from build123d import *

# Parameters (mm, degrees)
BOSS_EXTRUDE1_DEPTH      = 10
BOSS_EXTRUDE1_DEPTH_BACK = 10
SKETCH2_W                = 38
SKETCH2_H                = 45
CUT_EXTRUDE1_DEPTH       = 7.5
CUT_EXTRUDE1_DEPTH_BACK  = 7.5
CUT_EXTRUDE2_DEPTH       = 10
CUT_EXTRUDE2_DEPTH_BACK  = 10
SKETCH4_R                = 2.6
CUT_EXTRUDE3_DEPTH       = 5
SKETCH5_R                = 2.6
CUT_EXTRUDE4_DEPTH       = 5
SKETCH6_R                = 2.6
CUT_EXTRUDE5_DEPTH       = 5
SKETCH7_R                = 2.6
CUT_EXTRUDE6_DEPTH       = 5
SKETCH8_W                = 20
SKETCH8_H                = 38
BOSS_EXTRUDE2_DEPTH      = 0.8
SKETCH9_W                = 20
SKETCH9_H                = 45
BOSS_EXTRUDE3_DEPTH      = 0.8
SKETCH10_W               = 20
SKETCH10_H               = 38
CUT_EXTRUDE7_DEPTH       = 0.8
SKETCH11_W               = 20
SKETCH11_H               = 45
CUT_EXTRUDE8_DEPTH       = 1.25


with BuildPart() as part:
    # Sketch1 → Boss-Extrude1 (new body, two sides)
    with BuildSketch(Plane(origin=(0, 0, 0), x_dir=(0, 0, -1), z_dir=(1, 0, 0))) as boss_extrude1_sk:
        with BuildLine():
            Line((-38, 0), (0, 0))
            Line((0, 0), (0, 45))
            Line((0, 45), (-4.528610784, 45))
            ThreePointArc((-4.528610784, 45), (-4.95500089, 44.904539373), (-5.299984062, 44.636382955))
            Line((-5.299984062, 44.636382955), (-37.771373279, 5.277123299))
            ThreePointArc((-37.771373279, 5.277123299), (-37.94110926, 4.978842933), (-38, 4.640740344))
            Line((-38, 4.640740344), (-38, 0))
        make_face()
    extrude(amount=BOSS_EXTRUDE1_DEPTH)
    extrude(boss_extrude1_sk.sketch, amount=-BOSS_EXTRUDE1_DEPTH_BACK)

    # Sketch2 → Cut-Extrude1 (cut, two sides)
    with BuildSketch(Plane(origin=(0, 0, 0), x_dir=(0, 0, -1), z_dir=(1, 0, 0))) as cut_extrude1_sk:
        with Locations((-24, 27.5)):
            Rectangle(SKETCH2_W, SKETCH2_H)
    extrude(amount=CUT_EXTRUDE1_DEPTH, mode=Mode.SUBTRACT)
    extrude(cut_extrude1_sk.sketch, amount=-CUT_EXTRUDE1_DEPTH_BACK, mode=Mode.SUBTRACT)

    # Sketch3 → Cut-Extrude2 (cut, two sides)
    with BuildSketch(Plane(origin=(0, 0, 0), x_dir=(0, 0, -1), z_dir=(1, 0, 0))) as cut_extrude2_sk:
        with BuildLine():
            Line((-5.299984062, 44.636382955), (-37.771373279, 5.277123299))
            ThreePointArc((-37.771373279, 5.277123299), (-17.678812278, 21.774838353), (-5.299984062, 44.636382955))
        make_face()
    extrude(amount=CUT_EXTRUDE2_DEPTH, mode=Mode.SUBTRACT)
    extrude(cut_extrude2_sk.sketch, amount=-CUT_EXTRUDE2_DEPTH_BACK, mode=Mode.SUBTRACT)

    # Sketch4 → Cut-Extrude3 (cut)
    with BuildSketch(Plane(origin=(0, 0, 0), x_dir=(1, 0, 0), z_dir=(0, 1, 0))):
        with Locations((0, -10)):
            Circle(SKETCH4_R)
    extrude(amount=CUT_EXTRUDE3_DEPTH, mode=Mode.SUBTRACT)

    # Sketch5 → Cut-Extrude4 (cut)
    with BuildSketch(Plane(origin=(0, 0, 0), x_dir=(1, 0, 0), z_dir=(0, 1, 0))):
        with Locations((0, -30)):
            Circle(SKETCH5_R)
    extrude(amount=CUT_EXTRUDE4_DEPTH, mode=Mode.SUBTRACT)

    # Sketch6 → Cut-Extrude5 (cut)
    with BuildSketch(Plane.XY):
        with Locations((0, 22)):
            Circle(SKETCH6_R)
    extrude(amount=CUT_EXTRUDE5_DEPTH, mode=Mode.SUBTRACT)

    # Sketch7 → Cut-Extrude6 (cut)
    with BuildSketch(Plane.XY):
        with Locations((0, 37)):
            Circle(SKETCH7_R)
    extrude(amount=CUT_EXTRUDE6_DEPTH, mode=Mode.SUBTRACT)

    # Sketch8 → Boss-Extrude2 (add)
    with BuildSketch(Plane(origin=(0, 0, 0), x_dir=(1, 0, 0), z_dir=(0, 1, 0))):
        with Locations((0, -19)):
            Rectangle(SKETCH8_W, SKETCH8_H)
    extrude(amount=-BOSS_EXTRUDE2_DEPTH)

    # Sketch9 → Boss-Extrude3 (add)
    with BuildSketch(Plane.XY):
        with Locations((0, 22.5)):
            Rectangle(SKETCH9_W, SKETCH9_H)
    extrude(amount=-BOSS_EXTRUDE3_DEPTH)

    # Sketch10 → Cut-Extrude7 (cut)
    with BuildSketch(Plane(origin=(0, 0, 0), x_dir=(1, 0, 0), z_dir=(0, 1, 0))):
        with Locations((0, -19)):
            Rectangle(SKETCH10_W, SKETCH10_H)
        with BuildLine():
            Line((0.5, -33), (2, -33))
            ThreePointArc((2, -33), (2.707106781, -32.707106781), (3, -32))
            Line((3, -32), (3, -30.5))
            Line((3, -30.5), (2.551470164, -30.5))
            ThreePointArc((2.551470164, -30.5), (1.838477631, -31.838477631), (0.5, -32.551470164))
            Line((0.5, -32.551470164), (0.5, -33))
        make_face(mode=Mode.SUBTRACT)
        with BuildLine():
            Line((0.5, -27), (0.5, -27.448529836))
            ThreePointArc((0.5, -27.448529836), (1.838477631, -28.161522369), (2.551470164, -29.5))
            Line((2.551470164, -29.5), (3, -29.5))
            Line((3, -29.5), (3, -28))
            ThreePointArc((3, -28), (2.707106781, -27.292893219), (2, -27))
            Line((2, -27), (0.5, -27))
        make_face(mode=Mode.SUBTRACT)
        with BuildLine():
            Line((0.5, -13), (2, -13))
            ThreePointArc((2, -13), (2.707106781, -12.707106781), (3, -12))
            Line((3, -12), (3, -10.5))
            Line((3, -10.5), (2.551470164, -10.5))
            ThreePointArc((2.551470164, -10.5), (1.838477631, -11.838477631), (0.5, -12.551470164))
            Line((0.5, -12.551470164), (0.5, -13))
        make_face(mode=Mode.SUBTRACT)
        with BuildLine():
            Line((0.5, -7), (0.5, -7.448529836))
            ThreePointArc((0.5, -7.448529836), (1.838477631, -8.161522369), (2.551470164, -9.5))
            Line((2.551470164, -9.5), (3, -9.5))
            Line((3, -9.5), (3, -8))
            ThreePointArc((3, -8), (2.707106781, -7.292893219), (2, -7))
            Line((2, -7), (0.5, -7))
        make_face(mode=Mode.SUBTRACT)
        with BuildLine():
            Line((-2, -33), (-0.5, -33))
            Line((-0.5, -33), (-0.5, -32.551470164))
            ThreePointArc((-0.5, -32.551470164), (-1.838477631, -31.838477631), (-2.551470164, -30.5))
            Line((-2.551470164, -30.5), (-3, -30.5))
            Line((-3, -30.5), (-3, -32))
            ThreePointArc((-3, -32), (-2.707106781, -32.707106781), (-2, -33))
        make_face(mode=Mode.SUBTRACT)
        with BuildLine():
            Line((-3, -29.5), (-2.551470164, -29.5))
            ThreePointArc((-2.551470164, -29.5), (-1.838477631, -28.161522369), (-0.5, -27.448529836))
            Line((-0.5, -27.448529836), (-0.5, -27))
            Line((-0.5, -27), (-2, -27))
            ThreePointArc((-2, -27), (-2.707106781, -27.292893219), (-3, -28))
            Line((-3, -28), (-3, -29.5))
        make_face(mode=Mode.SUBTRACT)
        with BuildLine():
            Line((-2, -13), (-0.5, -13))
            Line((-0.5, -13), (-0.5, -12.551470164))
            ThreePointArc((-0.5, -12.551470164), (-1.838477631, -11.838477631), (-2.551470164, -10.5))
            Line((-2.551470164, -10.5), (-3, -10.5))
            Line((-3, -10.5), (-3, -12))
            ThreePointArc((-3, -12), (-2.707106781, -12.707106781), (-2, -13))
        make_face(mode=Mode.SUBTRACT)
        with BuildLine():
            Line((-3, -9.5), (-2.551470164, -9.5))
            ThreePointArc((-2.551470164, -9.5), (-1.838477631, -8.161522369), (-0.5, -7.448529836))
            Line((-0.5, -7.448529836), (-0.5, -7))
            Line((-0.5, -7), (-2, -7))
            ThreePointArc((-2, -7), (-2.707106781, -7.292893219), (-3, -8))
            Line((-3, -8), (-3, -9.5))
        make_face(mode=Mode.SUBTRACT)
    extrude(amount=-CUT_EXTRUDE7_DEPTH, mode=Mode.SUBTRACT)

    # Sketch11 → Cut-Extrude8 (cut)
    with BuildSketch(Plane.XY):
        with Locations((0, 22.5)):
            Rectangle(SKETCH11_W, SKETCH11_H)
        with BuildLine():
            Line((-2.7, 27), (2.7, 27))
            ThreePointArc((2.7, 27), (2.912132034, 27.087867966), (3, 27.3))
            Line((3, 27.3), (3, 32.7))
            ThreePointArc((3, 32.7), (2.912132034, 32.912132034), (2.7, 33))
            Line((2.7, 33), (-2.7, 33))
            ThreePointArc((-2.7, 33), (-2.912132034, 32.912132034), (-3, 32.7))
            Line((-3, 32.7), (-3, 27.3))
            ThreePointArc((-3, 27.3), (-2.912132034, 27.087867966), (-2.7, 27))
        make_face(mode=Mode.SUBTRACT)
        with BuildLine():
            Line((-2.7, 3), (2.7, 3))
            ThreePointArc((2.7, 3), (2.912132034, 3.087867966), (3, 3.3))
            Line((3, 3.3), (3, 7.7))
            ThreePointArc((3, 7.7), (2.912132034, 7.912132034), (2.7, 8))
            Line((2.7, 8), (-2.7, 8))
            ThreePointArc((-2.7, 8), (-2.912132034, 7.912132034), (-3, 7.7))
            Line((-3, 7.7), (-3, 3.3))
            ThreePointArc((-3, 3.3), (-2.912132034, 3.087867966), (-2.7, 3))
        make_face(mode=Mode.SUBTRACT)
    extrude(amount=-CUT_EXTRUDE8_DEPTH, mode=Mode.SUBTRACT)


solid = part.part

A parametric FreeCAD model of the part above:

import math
import FreeCAD as App
import Part
import Sketcher

doc = App.newDocument("Part")
body = doc.addObject("PartDesign::Body", "Body")

sketch1 = body.newObject("Sketcher::SketchObject", "Sketch")
sketch1.AttachmentSupport = (doc.getObject("YZ_Plane"), [""])
sketch1.MapMode = "FlatFace"
sketch1.addGeometry([
    Part.LineSegment(App.Vector(0, 38, 0), App.Vector(0, 0, 0)),
    Part.LineSegment(App.Vector(0, 0, 0), App.Vector(45, 0, 0)),
    Part.LineSegment(App.Vector(45, 0, 0), App.Vector(45, 4.5, 0)),
    Part.ArcOfCircle(Part.Circle(App.Vector(44, 4.5, 0), App.Vector(0, 0, 1), 1), math.radians(0), math.radians(50)),
    Part.LineSegment(App.Vector(44.6, 5.3, 0), App.Vector(5.3, 37.8, 0)),
    Part.ArcOfCircle(Part.Circle(App.Vector(4.6, 37, 0), App.Vector(0, 0, 1), 1), math.radians(50), math.radians(90)),
    Part.LineSegment(App.Vector(4.6, 38, 0), App.Vector(0, 38, 0)),
], False)
sketch1.addConstraint([
    Sketcher.Constraint("Coincident", 0, 2, 1, 1),
    Sketcher.Constraint("Coincident", 1, 2, 2, 1),
    Sketcher.Constraint("Tangent", 2, 2, 3, 1),
    Sketcher.Constraint("Tangent", 3, 2, 4, 1),
    Sketcher.Constraint("Tangent", 4, 2, 5, 1),
    Sketcher.Constraint("Tangent", 5, 2, 6, 1),
    Sketcher.Constraint("Coincident", 6, 2, 0, 1),
    Sketcher.Constraint("Vertical", 0),
    Sketcher.Constraint("Horizontal", 1),
    Sketcher.Constraint("Vertical", 2),
    Sketcher.Constraint("Horizontal", 6),
    Sketcher.Constraint("Coincident", 0, 2, -1, 1),
    Sketcher.Constraint("Equal", 3, 5),
    Sketcher.Constraint("Radius", 3, 1.0),
    Sketcher.Constraint("DistanceX", 1, 1, 1, 2, 45.0),
    Sketcher.Constraint("DistanceY", 0, 2, 0, 1, 38.0),
    Sketcher.Constraint("DistanceX", 6, 2, 6, 1, 4.64074),
    Sketcher.Constraint("DistanceY", 2, 1, 2, 2, 4.528611),
])
pad1 = body.newObject("PartDesign::Pad", "Pad")
pad1.Profile = sketch1
pad1.Type = "TwoLengths"
pad1.Length = 10
pad1.Length2 = 10

sketch2 = body.newObject("Sketcher::SketchObject", "Sketch001")
sketch2.AttachmentSupport = (doc.getObject("YZ_Plane"), [""])
sketch2.MapMode = "FlatFace"
sketch2.addGeometry([
    Part.LineSegment(App.Vector(50, 43, 0), App.Vector(5, 43, 0)),
    Part.LineSegment(App.Vector(5, 43, 0), App.Vector(5, 5, 0)),
    Part.LineSegment(App.Vector(5, 5, 0), App.Vector(50, 5, 0)),
    Part.LineSegment(App.Vector(50, 5, 0), App.Vector(50, 43, 0)),
], False)
sketch2.addConstraint([
    Sketcher.Constraint("Coincident", 0, 2, 1, 1),
    Sketcher.Constraint("Coincident", 1, 2, 2, 1),
    Sketcher.Constraint("Coincident", 2, 2, 3, 1),
    Sketcher.Constraint("Coincident", 3, 2, 0, 1),
    Sketcher.Constraint("Horizontal", 0),
    Sketcher.Constraint("Vertical", 1),
    Sketcher.Constraint("Horizontal", 2),
    Sketcher.Constraint("Vertical", 3),
    Sketcher.Constraint("DistanceX", 0, 2, 0, 1, 45.0),
    Sketcher.Constraint("DistanceY", 1, 2, 1, 1, 38.0),
    Sketcher.Constraint("DistanceX", -1, 1, 0, 2, 5.0),
    Sketcher.Constraint("DistanceY", -1, 1, 0, 2, 43.0),
])
pocket1 = body.newObject("PartDesign::Pocket", "Pocket")
pocket1.Profile = sketch2
pocket1.Type = "TwoLengths"
pocket1.Length = 7.5
pocket1.Length2 = 7.5
pocket1.Reversed = True

sketch3 = body.newObject("Sketcher::SketchObject", "Sketch002")
sketch3.AttachmentSupport = (doc.getObject("YZ_Plane"), [""])
sketch3.MapMode = "FlatFace"
sketch3.addGeometry([
    Part.LineSegment(App.Vector(45, 5, 0), App.Vector(5, 38, 0)),
    Part.ArcOfCircle(Part.Circle(App.Vector(65, 70, 0), App.Vector(0, 0, 1), 68), math.radians(-152), math.radians(-107)),
], False)
sketch3.addConstraint([
    Sketcher.Constraint("Coincident", 0, 1, 1, 2),
    Sketcher.Constraint("Coincident", 1, 1, 0, 2),
    Sketcher.Constraint("Radius", 1, 67.588561),
    Sketcher.Constraint("Distance", 0, 51.02492),
    Sketcher.Constraint("DistanceY", 0, 1, 1, 3, 64.514838),
    Sketcher.Constraint("DistanceX", -1, 1, 1, 3, 64.787046),
    Sketcher.Constraint("DistanceY", -1, 1, 1, 3, 69.814822),
])
pocket2 = body.newObject("PartDesign::Pocket", "Pocket001")
pocket2.Profile = sketch3
pocket2.Type = "ThroughAll"
pocket2.Midplane = True

sketch4 = body.newObject("Sketcher::SketchObject", "Sketch003")
sketch4.AttachmentSupport = (doc.getObject("XZ_Plane"), [""])
sketch4.MapMode = "FlatFace"
sketch4.addGeometry(Part.Circle(App.Vector(0, 10, 0), App.Vector(0, 0, 1), 2.6), False)
sketch4.addConstraint([
    Sketcher.Constraint("PointOnObject", 0, 3, -2),
    Sketcher.Constraint("Diameter", 0, 5.2),
    Sketcher.Constraint("DistanceY", -1, 1, 0, 3, 10.0),
])
pocket3 = body.newObject("PartDesign::Pocket", "Pocket002")
pocket3.Profile = sketch4
pocket3.Length = 5

sketch5 = body.newObject("Sketcher::SketchObject", "Sketch004")
sketch5.AttachmentSupport = (doc.getObject("XZ_Plane"), [""])
sketch5.MapMode = "FlatFace"
sketch5.addGeometry(Part.Circle(App.Vector(0, 30, 0), App.Vector(0, 0, 1), 2.6), False)
sketch5.addConstraint([
    Sketcher.Constraint("PointOnObject", 0, 3, -2),
    Sketcher.Constraint("Diameter", 0, 5.2),
    Sketcher.Constraint("DistanceY", -1, 1, 0, 3, 30.0),
])
pocket4 = body.newObject("PartDesign::Pocket", "Pocket003")
pocket4.Profile = sketch5
pocket4.Length = 5

sketch6 = body.newObject("Sketcher::SketchObject", "Sketch005")
sketch6.AttachmentSupport = (doc.getObject("XY_Plane"), [""])
sketch6.MapMode = "FlatFace"
sketch6.addGeometry(Part.Circle(App.Vector(0, 22, 0), App.Vector(0, 0, 1), 2.6), False)
sketch6.addConstraint([
    Sketcher.Constraint("PointOnObject", 0, 3, -2),
    Sketcher.Constraint("Diameter", 0, 5.2),
    Sketcher.Constraint("DistanceY", -1, 1, 0, 3, 22.0),
])
pocket5 = body.newObject("PartDesign::Pocket", "Pocket004")
pocket5.Profile = sketch6
pocket5.Length = 5
pocket5.Reversed = True

sketch7 = body.newObject("Sketcher::SketchObject", "Sketch006")
sketch7.AttachmentSupport = (doc.getObject("XY_Plane"), [""])
sketch7.MapMode = "FlatFace"
sketch7.addGeometry(Part.Circle(App.Vector(0, 37, 0), App.Vector(0, 0, 1), 2.6), False)
sketch7.addConstraint([
    Sketcher.Constraint("PointOnObject", 0, 3, -2),
    Sketcher.Constraint("Diameter", 0, 5.2),
    Sketcher.Constraint("DistanceY", -1, 1, 0, 3, 37.0),
])
pocket6 = body.newObject("PartDesign::Pocket", "Pocket005")
pocket6.Profile = sketch7
pocket6.Length = 5
pocket6.Reversed = True

sketch8 = body.newObject("Sketcher::SketchObject", "Sketch007")
sketch8.AttachmentSupport = (doc.getObject("XZ_Plane"), [""])
sketch8.MapMode = "FlatFace"
sketch8.addGeometry([
    Part.LineSegment(App.Vector(-10, 0, 0), App.Vector(-10, 38, 0)),
    Part.LineSegment(App.Vector(-10, 38, 0), App.Vector(10, 38, 0)),
    Part.LineSegment(App.Vector(10, 38, 0), App.Vector(10, 0, 0)),
    Part.LineSegment(App.Vector(10, 0, 0), App.Vector(-10, 0, 0)),
], False)
sketch8.addConstraint([
    Sketcher.Constraint("Coincident", 0, 2, 1, 1),
    Sketcher.Constraint("Coincident", 1, 2, 2, 1),
    Sketcher.Constraint("Coincident", 2, 2, 3, 1),
    Sketcher.Constraint("Coincident", 3, 2, 0, 1),
    Sketcher.Constraint("Vertical", 0),
    Sketcher.Constraint("Horizontal", 1),
    Sketcher.Constraint("Vertical", 2),
    Sketcher.Constraint("Horizontal", 3),
    Sketcher.Constraint("Symmetric", 2, 2, 3, 2, -1, 1),
    Sketcher.Constraint("DistanceX", 1, 1, 1, 2, 20.0),
    Sketcher.Constraint("DistanceY", 0, 1, 0, 2, 38.0),
])
pad2 = body.newObject("PartDesign::Pad", "Pad001")
pad2.Profile = sketch8
pad2.Length = 0.8

sketch9 = body.newObject("Sketcher::SketchObject", "Sketch008")
sketch9.AttachmentSupport = (doc.getObject("XY_Plane"), [""])
sketch9.MapMode = "FlatFace"
sketch9.addGeometry([
    Part.LineSegment(App.Vector(-10, 45, 0), App.Vector(-10, 0, 0)),
    Part.LineSegment(App.Vector(-10, 0, 0), App.Vector(10, 0, 0)),
    Part.LineSegment(App.Vector(10, 0, 0), App.Vector(10, 45, 0)),
    Part.LineSegment(App.Vector(10, 45, 0), App.Vector(-10, 45, 0)),
], False)
sketch9.addConstraint([
    Sketcher.Constraint("Coincident", 0, 2, 1, 1),
    Sketcher.Constraint("Coincident", 1, 2, 2, 1),
    Sketcher.Constraint("Coincident", 2, 2, 3, 1),
    Sketcher.Constraint("Coincident", 3, 2, 0, 1),
    Sketcher.Constraint("Vertical", 0),
    Sketcher.Constraint("Horizontal", 1),
    Sketcher.Constraint("Vertical", 2),
    Sketcher.Constraint("Horizontal", 3),
    Sketcher.Constraint("Symmetric", 0, 2, 1, 2, -1, 1),
    Sketcher.Constraint("DistanceX", 1, 1, 1, 2, 20.0),
    Sketcher.Constraint("DistanceY", 0, 2, 0, 1, 45.0),
])
pad3 = body.newObject("PartDesign::Pad", "Pad002")
pad3.Profile = sketch9
pad3.Length = 0.8
pad3.Reversed = True

sketch10 = body.newObject("Sketcher::SketchObject", "Sketch009")
sketch10.AttachmentSupport = (doc.getObject("XZ_Plane"), [""])
sketch10.MapMode = "FlatFace"
sketch10.addGeometry([
    Part.LineSegment(App.Vector(-10, 0, 0), App.Vector(-10, 38, 0)),
    Part.LineSegment(App.Vector(-10, 38, 0), App.Vector(10, 38, 0)),
    Part.LineSegment(App.Vector(10, 38, 0), App.Vector(10, 0, 0)),
    Part.LineSegment(App.Vector(10, 0, 0), App.Vector(-10, 0, 0)),
    Part.LineSegment(App.Vector(-0.5, 33, 0), App.Vector(-2, 33, 0)),
    Part.ArcOfCircle(Part.Circle(App.Vector(-2, 32, 0), App.Vector(0, 0, 1), 1), math.radians(90), math.radians(180)),
    Part.LineSegment(App.Vector(-3, 32, 0), App.Vector(-3, 30.5, 0)),
    Part.LineSegment(App.Vector(-3, 30.5, 0), App.Vector(-2.55, 30.5, 0)),
    Part.ArcOfCircle(Part.Circle(App.Vector(0, 30, 0), App.Vector(0, 0, 1), 2.6), math.radians(101), math.radians(169)),
    Part.LineSegment(App.Vector(-0.5, 32.55, 0), App.Vector(-0.5, 33, 0)),
    Part.LineSegment(App.Vector(-2.55, 29.5, 0), App.Vector(-3, 29.5, 0)),
    Part.LineSegment(App.Vector(-3, 29.5, 0), App.Vector(-3, 28, 0)),
    Part.ArcOfCircle(Part.Circle(App.Vector(-2, 28, 0), App.Vector(0, 0, 1), 1), math.radians(-180), math.radians(-90)),
    Part.LineSegment(App.Vector(-2, 27, 0), App.Vector(-0.5, 27, 0)),
    Part.LineSegment(App.Vector(-0.5, 27, 0), App.Vector(-0.5, 27.45, 0)),
    Part.ArcOfCircle(Part.Circle(App.Vector(0, 30, 0), App.Vector(0, 0, 1), 2.6), math.radians(-169), math.radians(-101)),
    Part.LineSegment(App.Vector(2, 33, 0), App.Vector(0.5, 33, 0)),
    Part.LineSegment(App.Vector(0.5, 33, 0), App.Vector(0.5, 32.55, 0)),
    Part.ArcOfCircle(Part.Circle(App.Vector(0, 30, 0), App.Vector(0, 0, 1), 2.6), math.radians(11), math.radians(79)),
    Part.LineSegment(App.Vector(2.55, 30.5, 0), App.Vector(3, 30.5, 0)),
    Part.LineSegment(App.Vector(3, 30.5, 0), App.Vector(3, 32, 0)),
    Part.ArcOfCircle(Part.Circle(App.Vector(2, 32, 0), App.Vector(0, 0, 1), 1), math.radians(0), math.radians(90)),
    Part.LineSegment(App.Vector(0.5, 27.45, 0), App.Vector(0.5, 27, 0)),
    Part.LineSegment(App.Vector(0.5, 27, 0), App.Vector(2, 27, 0)),
    Part.ArcOfCircle(Part.Circle(App.Vector(2, 28, 0), App.Vector(0, 0, 1), 1), math.radians(-90), math.radians(0)),
    Part.LineSegment(App.Vector(3, 28, 0), App.Vector(3, 29.5, 0)),
    Part.LineSegment(App.Vector(3, 29.5, 0), App.Vector(2.55, 29.5, 0)),
    Part.ArcOfCircle(Part.Circle(App.Vector(0, 30, 0), App.Vector(0, 0, 1), 2.6), math.radians(-79), math.radians(-11)),
    Part.LineSegment(App.Vector(-0.5, 13, 0), App.Vector(-2, 13, 0)),
    Part.ArcOfCircle(Part.Circle(App.Vector(-2, 12, 0), App.Vector(0, 0, 1), 1), math.radians(90), math.radians(180)),
    Part.LineSegment(App.Vector(-3, 12, 0), App.Vector(-3, 10.5, 0)),
    Part.LineSegment(App.Vector(-3, 10.5, 0), App.Vector(-2.55, 10.5, 0)),
    Part.ArcOfCircle(Part.Circle(App.Vector(0, 10, 0), App.Vector(0, 0, 1), 2.6), math.radians(101), math.radians(169)),
    Part.LineSegment(App.Vector(-0.5, 12.55, 0), App.Vector(-0.5, 13, 0)),
    Part.LineSegment(App.Vector(-2.55, 9.5, 0), App.Vector(-3, 9.5, 0)),
    Part.LineSegment(App.Vector(-3, 9.5, 0), App.Vector(-3, 8, 0)),
    Part.ArcOfCircle(Part.Circle(App.Vector(-2, 8, 0), App.Vector(0, 0, 1), 1), math.radians(-180), math.radians(-90)),
    Part.LineSegment(App.Vector(-2, 7, 0), App.Vector(-0.5, 7, 0)),
    Part.LineSegment(App.Vector(-0.5, 7, 0), App.Vector(-0.5, 7.45, 0)),
    Part.ArcOfCircle(Part.Circle(App.Vector(0, 10, 0), App.Vector(0, 0, 1), 2.6), math.radians(-169), math.radians(-101)),
    Part.LineSegment(App.Vector(2, 13, 0), App.Vector(0.5, 13, 0)),
    Part.LineSegment(App.Vector(0.5, 13, 0), App.Vector(0.5, 12.55, 0)),
    Part.ArcOfCircle(Part.Circle(App.Vector(0, 10, 0), App.Vector(0, 0, 1), 2.6), math.radians(11), math.radians(79)),
    Part.LineSegment(App.Vector(2.55, 10.5, 0), App.Vector(3, 10.5, 0)),
    Part.LineSegment(App.Vector(3, 10.5, 0), App.Vector(3, 12, 0)),
    Part.ArcOfCircle(Part.Circle(App.Vector(2, 12, 0), App.Vector(0, 0, 1), 1), math.radians(0), math.radians(90)),
    Part.LineSegment(App.Vector(0.5, 7.45, 0), App.Vector(0.5, 7, 0)),
    Part.LineSegment(App.Vector(0.5, 7, 0), App.Vector(2, 7, 0)),
    Part.ArcOfCircle(Part.Circle(App.Vector(2, 8, 0), App.Vector(0, 0, 1), 1), math.radians(-90), math.radians(0)),
    Part.LineSegment(App.Vector(3, 8, 0), App.Vector(3, 9.5, 0)),
    Part.LineSegment(App.Vector(3, 9.5, 0), App.Vector(2.55, 9.5, 0)),
    Part.ArcOfCircle(Part.Circle(App.Vector(0, 10, 0), App.Vector(0, 0, 1), 2.6), math.radians(-79), math.radians(-11)),
], False)
sketch10.addConstraint([
    Sketcher.Constraint("Coincident", 0, 2, 1, 1),
    Sketcher.Constraint("Coincident", 1, 2, 2, 1),
    Sketcher.Constraint("Coincident", 2, 2, 3, 1),
    Sketcher.Constraint("Coincident", 3, 2, 0, 1),
    Sketcher.Constraint("Tangent", 4, 2, 5, 1),
    Sketcher.Constraint("Tangent", 5, 2, 6, 1),
    Sketcher.Constraint("Coincident", 6, 2, 7, 1),
    Sketcher.Constraint("Coincident", 7, 2, 8, 2),
    Sketcher.Constraint("Coincident", 8, 1, 9, 1),
    Sketcher.Constraint("Coincident", 9, 2, 4, 1),
    Sketcher.Constraint("Coincident", 10, 2, 11, 1),
    Sketcher.Constraint("Tangent", 11, 2, 12, 1),
    Sketcher.Constraint("Tangent", 12, 2, 13, 1),
    Sketcher.Constraint("Coincident", 13, 2, 14, 1),
    Sketcher.Constraint("Coincident", 14, 2, 15, 2),
    Sketcher.Constraint("Coincident", 15, 1, 10, 1),
    Sketcher.Constraint("Coincident", 16, 2, 17, 1),
    Sketcher.Constraint("Coincident", 17, 2, 18, 2),
    Sketcher.Constraint("Coincident", 18, 1, 19, 1),
    Sketcher.Constraint("Coincident", 19, 2, 20, 1),
    Sketcher.Constraint("Tangent", 20, 2, 21, 1),
    Sketcher.Constraint("Tangent", 21, 2, 16, 1),
    Sketcher.Constraint("Coincident", 22, 2, 23, 1),
    Sketcher.Constraint("Tangent", 23, 2, 24, 1),
    Sketcher.Constraint("Tangent", 24, 2, 25, 1),
    Sketcher.Constraint("Coincident", 25, 2, 26, 1),
    Sketcher.Constraint("Coincident", 26, 2, 27, 2),
    Sketcher.Constraint("Coincident", 27, 1, 22, 1),
    Sketcher.Constraint("Tangent", 28, 2, 29, 1),
    Sketcher.Constraint("Tangent", 29, 2, 30, 1),
    Sketcher.Constraint("Coincident", 30, 2, 31, 1),
    Sketcher.Constraint("Coincident", 31, 2, 32, 2),
    Sketcher.Constraint("Coincident", 32, 1, 33, 1),
    Sketcher.Constraint("Coincident", 33, 2, 28, 1),
    Sketcher.Constraint("Coincident", 34, 2, 35, 1),
    Sketcher.Constraint("Tangent", 35, 2, 36, 1),
    Sketcher.Constraint("Tangent", 36, 2, 37, 1),
    Sketcher.Constraint("Coincident", 37, 2, 38, 1),
    Sketcher.Constraint("Coincident", 38, 2, 39, 2),
    Sketcher.Constraint("Coincident", 39, 1, 34, 1),
    Sketcher.Constraint("Coincident", 40, 2, 41, 1),
    Sketcher.Constraint("Coincident", 41, 2, 42, 2),
    Sketcher.Constraint("Coincident", 42, 1, 43, 1),
    Sketcher.Constraint("Coincident", 43, 2, 44, 1),
    Sketcher.Constraint("Tangent", 44, 2, 45, 1),
    Sketcher.Constraint("Tangent", 45, 2, 40, 1),
    Sketcher.Constraint("Coincident", 46, 2, 47, 1),
    Sketcher.Constraint("Tangent", 47, 2, 48, 1),
    Sketcher.Constraint("Tangent", 48, 2, 49, 1),
    Sketcher.Constraint("Coincident", 49, 2, 50, 1),
    Sketcher.Constraint("Coincident", 50, 2, 51, 2),
    Sketcher.Constraint("Coincident", 51, 1, 46, 1),
    Sketcher.Constraint("Vertical", 0),
    Sketcher.Constraint("Horizontal", 1),
    Sketcher.Constraint("Vertical", 2),
    Sketcher.Constraint("Horizontal", 3),
    Sketcher.Constraint("Horizontal", 4),
    Sketcher.Constraint("Vertical", 6),
    Sketcher.Constraint("Horizontal", 7),
    Sketcher.Constraint("Vertical", 9),
    Sketcher.Constraint("Horizontal", 10),
    Sketcher.Constraint("Vertical", 11),
    Sketcher.Constraint("Horizontal", 13),
    Sketcher.Constraint("Vertical", 14),
    Sketcher.Constraint("Horizontal", 16),
    Sketcher.Constraint("Vertical", 17),
    Sketcher.Constraint("Horizontal", 19),
    Sketcher.Constraint("Vertical", 20),
    Sketcher.Constraint("Vertical", 22),
    Sketcher.Constraint("Horizontal", 23),
    Sketcher.Constraint("Vertical", 25),
    Sketcher.Constraint("Horizontal", 26),
    Sketcher.Constraint("Horizontal", 28),
    Sketcher.Constraint("Vertical", 30),
    Sketcher.Constraint("Horizontal", 31),
    Sketcher.Constraint("Vertical", 33),
    Sketcher.Constraint("Horizontal", 34),
    Sketcher.Constraint("Vertical", 35),
    Sketcher.Constraint("Horizontal", 37),
    Sketcher.Constraint("Vertical", 38),
    Sketcher.Constraint("Horizontal", 40),
    Sketcher.Constraint("Vertical", 41),
    Sketcher.Constraint("Horizontal", 43),
    Sketcher.Constraint("Vertical", 44),
    Sketcher.Constraint("Vertical", 46),
    Sketcher.Constraint("Horizontal", 47),
    Sketcher.Constraint("Vertical", 49),
    Sketcher.Constraint("Horizontal", 50),
    Sketcher.Constraint("Coincident", 15, 3, 8, 3),
    Sketcher.Constraint("Coincident", 18, 3, 8, 3),
    Sketcher.Constraint("Coincident", 27, 3, 8, 3),
    Sketcher.Constraint("Coincident", 39, 3, 32, 3),
    Sketcher.Constraint("Coincident", 42, 3, 32, 3),
    Sketcher.Constraint("Coincident", 51, 3, 32, 3),
    Sketcher.Constraint("Equal", 5, 12),
    Sketcher.Constraint("Equal", 8, 15),
    Sketcher.Constraint("Equal", 15, 18),
    Sketcher.Constraint("Equal", 12, 21),
    Sketcher.Constraint("Equal", 21, 24),
    Sketcher.Constraint("Equal", 18, 27),
    Sketcher.Constraint("Equal", 24, 29),
    Sketcher.Constraint("Equal", 27, 32),
    Sketcher.Constraint("Equal", 29, 36),
    Sketcher.Constraint("Equal", 32, 39),
    Sketcher.Constraint("Equal", 39, 42),
    Sketcher.Constraint("Equal", 36, 45),
    Sketcher.Constraint("Equal", 45, 48),
    Sketcher.Constraint("Equal", 42, 51),
    Sketcher.Constraint("Symmetric", 2, 2, 3, 2, -1, 1),
    Sketcher.Constraint("Symmetric", 5, 3, 21, 3, -2),
    Sketcher.Constraint("Symmetric", 12, 3, 24, 3, -2),
    Sketcher.Constraint("Symmetric", 29, 3, 45, 3, -2),
    Sketcher.Constraint("Symmetric", 36, 3, 48, 3, -2),
    Sketcher.Constraint("Symmetric", 8, 1, 17, 2, -2),
    Sketcher.Constraint("Symmetric", 32, 1, 41, 2, -2),
    Sketcher.Constraint("Horizontal", 7, 2, 18, 1),
    Sketcher.Constraint("Horizontal", 15, 1, 25, 2),
    Sketcher.Constraint("Horizontal", 14, 2, 27, 1),
    Sketcher.Constraint("Horizontal", 31, 2, 42, 1),
    Sketcher.Constraint("Horizontal", 39, 1, 49, 2),
    Sketcher.Constraint("Horizontal", 38, 2, 51, 1),
    Sketcher.Constraint("Vertical", 5, 3, 12, 3),
    Sketcher.Constraint("Vertical", 12, 3, 29, 3),
    Sketcher.Constraint("Vertical", 29, 3, 36, 3),
    Sketcher.Constraint("Vertical", 9, 2, 13, 2),
    Sketcher.Constraint("Vertical", 7, 2, 15, 1),
    Sketcher.Constraint("Vertical", 15, 1, 31, 2),
    Sketcher.Constraint("Vertical", 14, 2, 32, 1),
    Sketcher.Constraint("Vertical", 33, 2, 37, 2),
    Sketcher.Constraint("Vertical", 31, 2, 39, 1),
    Sketcher.Constraint("Equal", 47, 6),
    Sketcher.Constraint("Equal", 50, 9),
    Sketcher.Constraint("Equal", 6, 11),
    Sketcher.Constraint("Equal", 25, 30),
    Sketcher.Constraint("Equal", 30, 35),
    Sketcher.Constraint("Radius", 5, 1.0),
    Sketcher.Constraint("Radius", 8, 2.6),
    Sketcher.Constraint("DistanceX", 1, 1, 1, 2, 20.0),
    Sketcher.Constraint("DistanceY", 0, 1, 0, 2, 38.0),
    Sketcher.Constraint("DistanceX", 4, 2, 4, 1, 1.5),
    Sketcher.Constraint("DistanceX", 5, 3, -1, 1, 2.0),
    Sketcher.Constraint("DistanceY", -1, 1, 5, 3, 32.0),
    Sketcher.Constraint("DistanceY", -1, 1, 29, 3, 12.0),
])
pocket7 = body.newObject("PartDesign::Pocket", "Pocket006")
pocket7.Profile = sketch10
pocket7.Length = 0.8
pocket7.Reversed = True

sketch11 = body.newObject("Sketcher::SketchObject", "Sketch010")
sketch11.AttachmentSupport = (doc.getObject("XY_Plane"), [""])
sketch11.MapMode = "FlatFace"
sketch11.addGeometry([
    Part.LineSegment(App.Vector(-10, 45, 0), App.Vector(-10, 0, 0)),
    Part.LineSegment(App.Vector(-10, 0, 0), App.Vector(10, 0, 0)),
    Part.LineSegment(App.Vector(10, 0, 0), App.Vector(10, 45, 0)),
    Part.LineSegment(App.Vector(10, 45, 0), App.Vector(-10, 45, 0)),
    Part.LineSegment(App.Vector(2.7, 3, 0), App.Vector(-2.7, 3, 0)),
    Part.ArcOfCircle(Part.Circle(App.Vector(-2.7, 3.3, 0), App.Vector(0, 0, 1), 0.3), math.radians(-180), math.radians(-90)),
    Part.LineSegment(App.Vector(-3, 3.3, 0), App.Vector(-3, 7.7, 0)),
    Part.ArcOfCircle(Part.Circle(App.Vector(-2.7, 7.7, 0), App.Vector(0, 0, 1), 0.3), math.radians(90), math.radians(180)),
    Part.LineSegment(App.Vector(-2.7, 8, 0), App.Vector(2.7, 8, 0)),
    Part.ArcOfCircle(Part.Circle(App.Vector(2.7, 7.7, 0), App.Vector(0, 0, 1), 0.3), math.radians(0), math.radians(90)),
    Part.LineSegment(App.Vector(3, 7.7, 0), App.Vector(3, 3.3, 0)),
    Part.ArcOfCircle(Part.Circle(App.Vector(2.7, 3.3, 0), App.Vector(0, 0, 1), 0.3), math.radians(-90), math.radians(0)),
    Part.LineSegment(App.Vector(2.7, 27, 0), App.Vector(-2.7, 27, 0)),
    Part.ArcOfCircle(Part.Circle(App.Vector(-2.7, 27.3, 0), App.Vector(0, 0, 1), 0.3), math.radians(-180), math.radians(-90)),
    Part.LineSegment(App.Vector(-3, 27.3, 0), App.Vector(-3, 32.7, 0)),
    Part.ArcOfCircle(Part.Circle(App.Vector(-2.7, 32.7, 0), App.Vector(0, 0, 1), 0.3), math.radians(90), math.radians(180)),
    Part.LineSegment(App.Vector(-2.7, 33, 0), App.Vector(2.7, 33, 0)),
    Part.ArcOfCircle(Part.Circle(App.Vector(2.7, 32.7, 0), App.Vector(0, 0, 1), 0.3), math.radians(0), math.radians(90)),
    Part.LineSegment(App.Vector(3, 32.7, 0), App.Vector(3, 27.3, 0)),
    Part.ArcOfCircle(Part.Circle(App.Vector(2.7, 27.3, 0), App.Vector(0, 0, 1), 0.3), math.radians(-90), math.radians(0)),
], False)
sketch11.addConstraint([
    Sketcher.Constraint("Coincident", 0, 2, 1, 1),
    Sketcher.Constraint("Coincident", 1, 2, 2, 1),
    Sketcher.Constraint("Coincident", 2, 2, 3, 1),
    Sketcher.Constraint("Coincident", 3, 2, 0, 1),
    Sketcher.Constraint("Tangent", 4, 2, 5, 2),
    Sketcher.Constraint("Tangent", 5, 1, 6, 1),
    Sketcher.Constraint("Tangent", 6, 2, 7, 2),
    Sketcher.Constraint("Tangent", 7, 1, 8, 1),
    Sketcher.Constraint("Tangent", 8, 2, 9, 2),
    Sketcher.Constraint("Tangent", 9, 1, 10, 1),
    Sketcher.Constraint("Tangent", 10, 2, 11, 2),
    Sketcher.Constraint("Tangent", 11, 1, 4, 1),
    Sketcher.Constraint("Tangent", 12, 2, 13, 2),
    Sketcher.Constraint("Tangent", 13, 1, 14, 1),
    Sketcher.Constraint("Tangent", 14, 2, 15, 2),
    Sketcher.Constraint("Tangent", 15, 1, 16, 1),
    Sketcher.Constraint("Tangent", 16, 2, 17, 2),
    Sketcher.Constraint("Tangent", 17, 1, 18, 1),
    Sketcher.Constraint("Tangent", 18, 2, 19, 2),
    Sketcher.Constraint("Tangent", 19, 1, 12, 1),
    Sketcher.Constraint("Vertical", 0),
    Sketcher.Constraint("Horizontal", 1),
    Sketcher.Constraint("Vertical", 2),
    Sketcher.Constraint("Horizontal", 3),
    Sketcher.Constraint("Horizontal", 4),
    Sketcher.Constraint("Vertical", 6),
    Sketcher.Constraint("Horizontal", 8),
    Sketcher.Constraint("Vertical", 10),
    Sketcher.Constraint("Horizontal", 12),
    Sketcher.Constraint("Vertical", 14),
    Sketcher.Constraint("Horizontal", 16),
    Sketcher.Constraint("Vertical", 18),
    Sketcher.Constraint("Equal", 5, 7),
    Sketcher.Constraint("Equal", 7, 9),
    Sketcher.Constraint("Equal", 9, 11),
    Sketcher.Constraint("Equal", 11, 13),
    Sketcher.Constraint("Equal", 13, 15),
    Sketcher.Constraint("Equal", 15, 17),
    Sketcher.Constraint("Equal", 17, 19),
    Sketcher.Constraint("Symmetric", 0, 2, 1, 2, -1, 1),
    Sketcher.Constraint("Vertical", 7, 3, 13, 3),
    Sketcher.Constraint("Vertical", 11, 3, 17, 3),
    Sketcher.Constraint("Equal", 16, 14),
    Sketcher.Constraint("Radius", 5, 0.3),
    Sketcher.Constraint("DistanceX", 1, 1, 1, 2, 20.0),
    Sketcher.Constraint("DistanceY", 0, 2, 0, 1, 45.0),
    Sketcher.Constraint("DistanceX", 4, 2, 4, 1, 5.4),
    Sketcher.Constraint("DistanceY", 6, 1, 6, 2, 4.4),
    Sketcher.Constraint("DistanceY", -1, 1, 4, 2, 3.0),
    Sketcher.Constraint("DistanceX", 5, 1, -1, 1, 3.0),
    Sketcher.Constraint("DistanceY", -1, 1, 12, 2, 27.0),
])
pocket8 = body.newObject("PartDesign::Pocket", "Pocket007")
pocket8.Profile = sketch11
pocket8.Length = 1.25

doc.recompute()
